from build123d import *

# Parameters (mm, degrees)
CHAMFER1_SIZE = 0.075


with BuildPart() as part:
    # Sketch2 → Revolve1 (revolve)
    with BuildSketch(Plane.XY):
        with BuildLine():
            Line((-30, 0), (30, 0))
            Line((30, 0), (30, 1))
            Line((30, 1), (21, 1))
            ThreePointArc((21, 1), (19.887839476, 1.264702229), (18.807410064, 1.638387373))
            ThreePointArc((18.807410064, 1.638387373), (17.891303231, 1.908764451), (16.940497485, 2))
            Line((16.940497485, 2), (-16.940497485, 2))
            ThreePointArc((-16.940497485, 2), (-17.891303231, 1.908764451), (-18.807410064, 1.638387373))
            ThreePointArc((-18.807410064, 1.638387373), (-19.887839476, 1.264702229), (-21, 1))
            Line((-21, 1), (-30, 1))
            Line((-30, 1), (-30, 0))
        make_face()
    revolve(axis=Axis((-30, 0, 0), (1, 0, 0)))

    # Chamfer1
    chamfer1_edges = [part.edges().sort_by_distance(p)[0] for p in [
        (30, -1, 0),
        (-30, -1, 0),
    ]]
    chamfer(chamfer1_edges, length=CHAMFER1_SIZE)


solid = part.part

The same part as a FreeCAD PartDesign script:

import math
import FreeCAD as App
import Part
import Sketcher
from FreeCAD import Vector
Q = App.Units.Quantity


def edges_at(feature, points):
    """Names of the edges that pass closest to the given points."""
    edges = feature.Shape.Edges
    near = lambda p: min(range(len(edges)), key=lambda i: edges[i].distToShape(Part.Vertex(*p))[0])
    return sorted({f"Edge{near(p) + 1}" for p in points})

doc = App.newDocument("Part")
body = doc.addObject("PartDesign::Body", "Body")

# Sketch on XY plane
sketch1 = body.newObject("Sketcher::SketchObject", "Sketch")
sketch1.AttachmentSupport = (doc.getObject("XY_Plane"), [""])
sketch1.MapMode = "FlatFace"
sketch1.addGeometry([
    Part.LineSegment(Vector(-30, 0, 0), Vector(30, 0, 0)),  # 0
    Part.LineSegment(Vector(30, 0, 0), Vector(30, 1, 0)),  # 1
    Part.LineSegment(Vector(30, 1, 0), Vector(21, 1, 0)),  # 2
    Part.ArcOfCircle(Part.Circle(Vector(23.1, 12.3, 0), Vector(0, 0, 1), 11.5), math.radians(-111.92), math.radians(-100.54)),  # 3
    Part.ArcOfCircle(Part.Circle(Vector(16.9, -3, 0), Vector(0, 0, 1), 5), math.radians(68), math.radians(90)),  # 4
    Part.LineSegment(Vector(16.9, 2, 0), Vector(-16.9, 2, 0)),  # 5
    Part.ArcOfCircle(Part.Circle(Vector(-16.9, -3, 0), Vector(0, 0, 1), 5), math.radians(90), math.radians(112)),  # 6
    Part.ArcOfCircle(Part.Circle(Vector(-23.1, 12.3, 0), Vector(0, 0, 1), 11.5), math.radians(-79.46), math.radians(-68.08)),  # 7
    Part.LineSegment(Vector(-21, 1, 0), Vector(-30, 1, 0)),  # 8
    Part.LineSegment(Vector(-30, 1, 0), Vector(-30, 0, 0)),  # 9
], False)
sketch1.addConstraint([
    Sketcher.Constraint("Coincident", 0, 2, 1, 1),
    Sketcher.Constraint("Coincident", 1, 2, 2, 1),
    Sketcher.Constraint("Coincident", 2, 2, 3, 2),
    Sketcher.Constraint("Tangent", 3, 1, 4, 1),
    Sketcher.Constraint("Tangent", 4, 2, 5, 1),
    Sketcher.Constraint("Tangent", 5, 2, 6, 1),
    Sketcher.Constraint("Tangent", 6, 2, 7, 2),
    Sketcher.Constraint("Coincident", 7, 1, 8, 1),
    Sketcher.Constraint("Coincident", 8, 2, 9, 1),
    Sketcher.Constraint("Coincident", 9, 2, 0, 1),
    Sketcher.Constraint("Horizontal", 0),
    Sketcher.Constraint("Vertical", 1),
    Sketcher.Constraint("Horizontal", 2),
    Sketcher.Constraint("Horizontal", 5),
    Sketcher.Constraint("Horizontal", 8),
    Sketcher.Constraint("Vertical", 9),
    Sketcher.Constraint("Equal", 4, 6),
    Sketcher.Constraint("Equal", 3, 7),
    Sketcher.Constraint("Symmetric", 0, 2, 9, 2, -1, 1),
    Sketcher.Constraint("Symmetric", 3, 3, 7, 3, -2),
    Sketcher.Constraint("Horizontal", 2, 2, 7, 1),
    Sketcher.Constraint("Radius", 4, Q("5 mm")),
    Sketcher.Constraint("DistanceX", 0, 1, 0, 2, Q("60 mm")),
    Sketcher.Constraint("DistanceX", 2, 2, 2, 1, Q("9 mm")),
    Sketcher.Constraint("DistanceY", 1, 1, 1, 2, Q("1 mm")),
    Sketcher.Constraint("DistanceY", 4, 3, -1, 1, Q("3 mm")),
    Sketcher.Constraint("Radius", 3, Q("11.514295 mm")),
    Sketcher.Constraint("DistanceX", 5, 2, 5, 1, Q("33.880995 mm")),
])
revolution = body.newObject("PartDesign::Revolution", "Revolution")
revolution.Profile = sketch1
revolution.ReferenceAxis = (sketch1, ["H_Axis"])
revolution.Angle = 360
doc.recompute()

chamfer = body.newObject("PartDesign::Chamfer", "Chamfer")
chamfer.Base = (revolution, edges_at(revolution, [(30, -1, 0), (-30, -1, 0)]))
chamfer.Size = 0.075

doc.recompute()
